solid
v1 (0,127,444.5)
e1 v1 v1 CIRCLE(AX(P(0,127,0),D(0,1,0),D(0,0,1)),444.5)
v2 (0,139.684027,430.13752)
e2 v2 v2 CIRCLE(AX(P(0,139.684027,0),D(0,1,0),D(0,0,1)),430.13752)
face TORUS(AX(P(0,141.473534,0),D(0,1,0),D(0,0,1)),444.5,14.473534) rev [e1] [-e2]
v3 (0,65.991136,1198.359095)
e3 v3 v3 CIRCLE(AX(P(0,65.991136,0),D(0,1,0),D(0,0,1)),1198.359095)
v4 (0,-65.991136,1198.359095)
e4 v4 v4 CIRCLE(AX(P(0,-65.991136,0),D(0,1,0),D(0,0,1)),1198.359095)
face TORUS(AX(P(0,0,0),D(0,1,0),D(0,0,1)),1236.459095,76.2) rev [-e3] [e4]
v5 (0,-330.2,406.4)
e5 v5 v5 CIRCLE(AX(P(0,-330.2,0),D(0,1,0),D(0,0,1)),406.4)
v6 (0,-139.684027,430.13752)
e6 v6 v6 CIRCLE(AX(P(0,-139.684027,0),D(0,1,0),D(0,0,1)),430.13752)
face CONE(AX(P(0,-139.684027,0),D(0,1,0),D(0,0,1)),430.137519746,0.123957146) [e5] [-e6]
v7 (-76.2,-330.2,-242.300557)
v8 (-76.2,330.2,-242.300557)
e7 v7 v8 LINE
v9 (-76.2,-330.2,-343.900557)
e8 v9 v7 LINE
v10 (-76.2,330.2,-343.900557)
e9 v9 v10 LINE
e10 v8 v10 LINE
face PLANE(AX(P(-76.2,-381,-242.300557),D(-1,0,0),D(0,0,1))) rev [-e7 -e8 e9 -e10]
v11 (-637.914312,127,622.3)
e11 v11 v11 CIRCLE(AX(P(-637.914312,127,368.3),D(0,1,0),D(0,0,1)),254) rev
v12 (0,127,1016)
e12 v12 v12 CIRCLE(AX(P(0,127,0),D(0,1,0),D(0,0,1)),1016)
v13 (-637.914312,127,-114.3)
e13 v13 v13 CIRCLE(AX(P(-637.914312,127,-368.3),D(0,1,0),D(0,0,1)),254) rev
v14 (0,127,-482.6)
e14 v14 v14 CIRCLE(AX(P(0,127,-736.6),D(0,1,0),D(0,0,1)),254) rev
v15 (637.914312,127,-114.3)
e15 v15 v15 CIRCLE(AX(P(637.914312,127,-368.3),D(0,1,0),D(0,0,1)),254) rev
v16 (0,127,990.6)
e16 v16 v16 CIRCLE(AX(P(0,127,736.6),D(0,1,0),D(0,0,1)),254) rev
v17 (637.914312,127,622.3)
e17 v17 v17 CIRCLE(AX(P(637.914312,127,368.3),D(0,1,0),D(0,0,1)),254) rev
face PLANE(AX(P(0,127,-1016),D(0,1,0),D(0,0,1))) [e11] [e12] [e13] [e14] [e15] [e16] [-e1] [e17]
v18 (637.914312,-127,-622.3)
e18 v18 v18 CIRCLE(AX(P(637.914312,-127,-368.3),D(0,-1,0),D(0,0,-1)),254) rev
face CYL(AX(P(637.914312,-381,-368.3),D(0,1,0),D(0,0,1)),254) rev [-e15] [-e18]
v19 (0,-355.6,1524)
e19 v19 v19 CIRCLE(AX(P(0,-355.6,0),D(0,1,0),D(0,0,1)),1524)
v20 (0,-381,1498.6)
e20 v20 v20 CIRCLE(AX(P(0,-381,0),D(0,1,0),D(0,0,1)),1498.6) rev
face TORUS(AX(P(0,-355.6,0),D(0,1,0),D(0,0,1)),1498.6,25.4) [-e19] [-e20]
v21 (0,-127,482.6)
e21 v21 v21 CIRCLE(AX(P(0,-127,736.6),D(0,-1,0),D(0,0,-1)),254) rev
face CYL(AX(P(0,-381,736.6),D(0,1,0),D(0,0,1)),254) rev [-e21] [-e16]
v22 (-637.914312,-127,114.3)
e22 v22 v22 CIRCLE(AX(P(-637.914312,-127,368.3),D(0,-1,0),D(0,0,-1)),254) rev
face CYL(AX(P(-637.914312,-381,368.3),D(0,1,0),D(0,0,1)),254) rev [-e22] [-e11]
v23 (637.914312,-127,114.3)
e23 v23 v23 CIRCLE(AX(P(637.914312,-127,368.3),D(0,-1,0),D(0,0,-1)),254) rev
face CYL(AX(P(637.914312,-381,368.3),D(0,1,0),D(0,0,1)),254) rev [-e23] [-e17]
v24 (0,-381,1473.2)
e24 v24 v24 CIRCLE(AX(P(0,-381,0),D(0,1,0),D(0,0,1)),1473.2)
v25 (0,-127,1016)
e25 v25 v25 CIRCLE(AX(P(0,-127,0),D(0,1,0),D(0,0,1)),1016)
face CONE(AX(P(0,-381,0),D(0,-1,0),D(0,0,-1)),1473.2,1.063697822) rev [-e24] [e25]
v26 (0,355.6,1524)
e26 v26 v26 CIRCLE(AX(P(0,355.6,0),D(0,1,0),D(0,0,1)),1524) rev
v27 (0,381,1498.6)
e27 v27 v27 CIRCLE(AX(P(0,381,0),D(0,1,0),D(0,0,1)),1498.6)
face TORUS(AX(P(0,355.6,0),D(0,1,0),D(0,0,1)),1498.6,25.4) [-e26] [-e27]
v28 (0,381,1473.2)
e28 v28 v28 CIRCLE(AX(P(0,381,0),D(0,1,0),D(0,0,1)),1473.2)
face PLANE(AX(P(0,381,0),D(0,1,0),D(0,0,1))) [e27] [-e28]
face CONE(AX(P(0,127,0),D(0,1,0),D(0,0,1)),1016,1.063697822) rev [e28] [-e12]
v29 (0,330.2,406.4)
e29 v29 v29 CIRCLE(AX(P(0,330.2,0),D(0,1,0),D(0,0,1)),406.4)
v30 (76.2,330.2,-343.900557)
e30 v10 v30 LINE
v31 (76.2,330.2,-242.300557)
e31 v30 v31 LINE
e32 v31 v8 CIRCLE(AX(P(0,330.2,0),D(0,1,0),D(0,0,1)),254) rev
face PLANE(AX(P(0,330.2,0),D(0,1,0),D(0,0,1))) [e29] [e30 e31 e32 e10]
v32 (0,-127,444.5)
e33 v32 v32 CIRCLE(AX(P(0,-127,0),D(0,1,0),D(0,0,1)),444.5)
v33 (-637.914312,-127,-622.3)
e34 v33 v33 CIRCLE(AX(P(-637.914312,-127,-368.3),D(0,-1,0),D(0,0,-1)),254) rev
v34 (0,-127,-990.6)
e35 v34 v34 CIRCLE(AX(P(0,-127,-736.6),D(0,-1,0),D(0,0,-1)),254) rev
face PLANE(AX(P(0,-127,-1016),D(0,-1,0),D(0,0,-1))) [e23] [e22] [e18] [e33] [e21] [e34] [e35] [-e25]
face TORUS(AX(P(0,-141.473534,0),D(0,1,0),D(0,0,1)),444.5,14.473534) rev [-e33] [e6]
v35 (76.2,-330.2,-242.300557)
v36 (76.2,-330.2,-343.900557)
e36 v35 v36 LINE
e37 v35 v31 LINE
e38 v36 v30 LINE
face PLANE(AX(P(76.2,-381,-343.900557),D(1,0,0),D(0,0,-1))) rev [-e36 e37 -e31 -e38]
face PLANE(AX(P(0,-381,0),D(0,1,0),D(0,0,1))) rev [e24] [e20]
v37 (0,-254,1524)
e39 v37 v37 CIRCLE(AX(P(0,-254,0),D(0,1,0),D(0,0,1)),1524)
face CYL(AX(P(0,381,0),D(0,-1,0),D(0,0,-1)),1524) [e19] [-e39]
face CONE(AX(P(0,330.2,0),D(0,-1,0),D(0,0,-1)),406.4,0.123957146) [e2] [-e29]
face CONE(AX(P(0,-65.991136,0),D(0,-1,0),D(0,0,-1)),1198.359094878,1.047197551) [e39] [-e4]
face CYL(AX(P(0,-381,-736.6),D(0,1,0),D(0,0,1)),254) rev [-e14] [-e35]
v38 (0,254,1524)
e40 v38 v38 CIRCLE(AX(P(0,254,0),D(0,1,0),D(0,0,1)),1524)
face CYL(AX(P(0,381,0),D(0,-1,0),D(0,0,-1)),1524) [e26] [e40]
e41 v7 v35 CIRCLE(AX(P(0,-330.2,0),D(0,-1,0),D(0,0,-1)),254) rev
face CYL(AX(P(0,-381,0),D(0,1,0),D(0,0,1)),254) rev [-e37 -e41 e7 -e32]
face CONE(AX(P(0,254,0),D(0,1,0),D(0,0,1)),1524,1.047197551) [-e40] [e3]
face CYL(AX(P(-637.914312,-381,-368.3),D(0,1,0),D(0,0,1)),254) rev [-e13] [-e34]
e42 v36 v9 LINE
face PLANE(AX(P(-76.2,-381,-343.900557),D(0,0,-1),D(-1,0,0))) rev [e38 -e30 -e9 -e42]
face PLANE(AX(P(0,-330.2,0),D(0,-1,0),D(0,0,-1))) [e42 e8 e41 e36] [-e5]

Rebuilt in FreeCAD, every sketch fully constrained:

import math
import FreeCAD as App
import Part
import Sketcher
Q = App.Units.Quantity


def edges_at(feature, points):
    """Names of the edges that pass closest to the given points."""
    edges = feature.Shape.Edges
    near = lambda p: min(range(len(edges)), key=lambda i: edges[i].distToShape(Part.Vertex(*p))[0])
    return sorted({f"Edge{near(p) + 1}" for p in points})

doc = App.newDocument("Part")
body = doc.addObject("PartDesign::Body", "Body")

# Sketch on XZ plane
sketch1 = doc.addObject("Sketcher::SketchObject", "Sketch")
body.addObject(sketch1)
sketch1.AttachmentSupport = (doc.XZ_Plane, [""])
sketch1.MapMode = "FlatFace"
sketch1.addGeometry(Part.Circle(App.Vector(0, 0, 0), App.Vector(0, 0, 1), 1524), False)
sketch1.addConstraint(Sketcher.Constraint("Coincident", 0, 3, -1, 1))
sketch1.addConstraint(Sketcher.Constraint("Diameter", 0, Q("120 in")))
pad1 = doc.addObject("PartDesign::Pad", "Pad")
body.addObject(pad1)
pad1.Profile = sketch1
pad1.Length = Q("30 in")
pad1.Midplane = True

# Sketch on YZ plane
sketch2 = doc.addObject("Sketcher::SketchObject", "Sketch001")
body.addObject(sketch2)
sketch2.AttachmentSupport = (doc.YZ_Plane, [""])
sketch2.MapMode = "FlatFace"
sketch2.addGeometry(Part.LineSegment(App.Vector(-254, -1524, 0), App.Vector(254, -1524, 0)), False)
sketch2.addGeometry(Part.LineSegment(App.Vector(254, -1524, 0), App.Vector(65.991136, -1198.359095, 0)), False)
sketch2.addGeometry(Part.ArcOfCircle(Part.Circle(App.Vector(0, -1236.459095, 0), App.Vector(0, 0, 1), 76.2), math.radians(30), math.radians(150)), False)
sketch2.addGeometry(Part.LineSegment(App.Vector(-65.991136, -1198.359095, 0), App.Vector(-254, -1524, 0)), False)
sketch2.addConstraint(Sketcher.Constraint("Coincident", 0, 2, 1, 1))
sketch2.addConstraint(Sketcher.Constraint("Tangent", 1, 2, 2, 1))
sketch2.addConstraint(Sketcher.Constraint("Tangent", 2, 2, 3, 1))
sketch2.addConstraint(Sketcher.Constraint("Coincident", 3, 2, 0, 1))
sketch2.addConstraint(Sketcher.Constraint("Horizontal", 0))
sketch2.addConstraint(Sketcher.Constraint("Symmetric", 1, 2, 2, 2, -2))
sketch2.addConstraint(Sketcher.Constraint("Radius", 2, Q("3 in")))
sketch2.addConstraint(Sketcher.Constraint("DistanceX", 0, 1, 0, 2, Q("20 in")))
sketch2.addConstraint(Sketcher.Constraint("DistanceY", 0, 2, -1, 1, Q("60 in")))
sketch2.addConstraint(Sketcher.Constraint("Angle", 1, Q("120 deg")))
groove = doc.addObject("PartDesign::Groove", "Groove")
body.addObject(groove)
groove.Profile = sketch2
groove.ReferenceAxis = (sketch2, ["H_Axis"])
groove.Angle = 360

# Sketch on XZ plane
sketch3 = doc.addObject("Sketcher::SketchObject", "Sketch002")
body.addObject(sketch3)
sketch3.AttachmentSupport = (doc.XZ_Plane, [""])
sketch3.MapMode = "FlatFace"
sketch3.AttachmentOffset = App.Placement(App.Vector(0, 0, -15 * 25.4), App.Rotation())
sketch3.addGeometry(Part.LineSegment(App.Vector(-76.2, -343.900557, 0), App.Vector(-76.2, -242.300557, 0)), False)
sketch3.addGeometry(Part.ArcOfCircle(Part.Circle(App.Vector(0, 0, 0), App.Vector(0, 0, 1), 254), math.radians(-72.542397), math.radians(252.542397)), False)
sketch3.addGeometry(Part.LineSegment(App.Vector(76.2, -242.300557, 0), App.Vector(76.2, -343.900557, 0)), False)
sketch3.addGeometry(Part.LineSegment(App.Vector(76.2, -343.900557, 0), App.Vector(-76.2, -343.900557, 0)), False)
sketch3.addConstraint(Sketcher.Constraint("Coincident", 0, 2, 1, 2))
sketch3.addConstraint(Sketcher.Constraint("Coincident", 1, 1, 2, 1))
sketch3.addConstraint(Sketcher.Constraint("Coincident", 2, 2, 3, 1))
sketch3.addConstraint(Sketcher.Constraint("Coincident", 3, 2, 0, 1))
sketch3.addConstraint(Sketcher.Constraint("Vertical", 0))
sketch3.addConstraint(Sketcher.Constraint("Vertical", 2))
sketch3.addConstraint(Sketcher.Constraint("Horizontal", 3))
sketch3.addConstraint(Sketcher.Constraint("Coincident", 1, 3, -1, 1))
sketch3.addConstraint(Sketcher.Constraint("Horizontal", 0, 2, 1, 1))
sketch3.addConstraint(Sketcher.Constraint("Radius", 1, Q("10 in")))
sketch3.addConstraint(Sketcher.Constraint("DistanceX", 3, 2, 3, 1, Q("6 in")))
sketch3.addConstraint(Sketcher.Constraint("DistanceY", 0, 1, 0, 2, Q("4 in")))
pocket1 = doc.addObject("PartDesign::Pocket", "Pocket")
body.addObject(pocket1)
pocket1.Profile = sketch3
pocket1.Type = "ThroughAll"
pocket1.Reversed = True

# Sketch on XZ plane
sketch4 = doc.addObject("Sketcher::SketchObject", "Sketch003")
body.addObject(sketch4)
sketch4.AttachmentSupport = (doc.XZ_Plane, [""])
sketch4.MapMode = "FlatFace"
sketch4.AttachmentOffset = App.Placement(App.Vector(0, 0, -15 * 25.4), App.Rotation())
sketch4.addGeometry(Part.Circle(App.Vector(0, -736.6, 0), App.Vector(0, 0, 1), 254), False)
sketch4.addConstraint(Sketcher.Constraint("PointOnObject", 0, 3, -2))
sketch4.addConstraint(Sketcher.Constraint("Diameter", 0, Q("20 in")))
sketch4.addConstraint(Sketcher.Constraint("DistanceY", 0, 3, -1, 1, Q("29 in")))
pocket2 = doc.addObject("PartDesign::Pocket", "Pocket001")
body.addObject(pocket2)
pocket2.Profile = sketch4
pocket2.Type = "ThroughAll"
pocket2.Reversed = True
doc.recompute()

polarpattern = doc.addObject("PartDesign::PolarPattern", "PolarPattern")
body.addObject(polarpattern)
polarpattern.Originals = [pocket2]
polarpattern.Axis = (doc.Y_Axis, [""])
polarpattern.Angle = 360
polarpattern.Occurrences = 6
body.Tip = polarpattern

# Sketch on YZ plane
sketch5 = doc.addObject("Sketcher::SketchObject", "Sketch004")
body.addObject(sketch5)
sketch5.AttachmentSupport = (doc.YZ_Plane, [""])
sketch5.MapMode = "FlatFace"
sketch5.addGeometry(Part.LineSegment(App.Vector(330.2, -406.4, 0), App.Vector(139.684027, -430.13752, 0)), False)
sketch5.addGeometry(Part.ArcOfCircle(Part.Circle(App.Vector(141.473534, -444.5, 0), App.Vector(0, 0, 1), 14.473534), math.radians(97.102221), math.radians(180)), False)
sketch5.addGeometry(Part.LineSegment(App.Vector(127, -444.5, 0), App.Vector(127, -1016, 0)), False)
sketch5.addGeometry(Part.LineSegment(App.Vector(127, -1016, 0), App.Vector(381, -1473.2, 0)), False)
sketch5.addGeometry(Part.LineSegment(App.Vector(381, -1473.2, 0), App.Vector(381, 0, 0)), False)
sketch5.addGeometry(Part.LineSegment(App.Vector(381, 0, 0), App.Vector(330.2, 0, 0)), False)
sketch5.addGeometry(Part.LineSegment(App.Vector(330.2, 0, 0), App.Vector(330.2, -406.4, 0)), False)
sketch5.addGeometry(Part.LineSegment(App.Vector(-330.2, 0, 0), App.Vector(-381, 0, 0)), False)
sketch5.addGeometry(Part.LineSegment(App.Vector(-381, 0, 0), App.Vector(-381, -1473.2, 0)), False)
sketch5.addGeometry(Part.LineSegment(App.Vector(-381, -1473.2, 0), App.Vector(-127, -1016, 0)), False)
sketch5.addGeometry(Part.LineSegment(App.Vector(-127, -1016, 0), App.Vector(-127, -444.5, 0)), False)
sketch5.addGeometry(Part.ArcOfCircle(Part.Circle(App.Vector(-141.473534, -444.5, 0), App.Vector(0, 0, 1), 14.473534), math.radians(0), math.radians(82.897779)), False)
sketch5.addGeometry(Part.LineSegment(App.Vector(-139.684027, -430.13752, 0), App.Vector(-330.2, -406.4, 0)), False)
sketch5.addGeometry(Part.LineSegment(App.Vector(-330.2, -406.4, 0), App.Vector(-330.2, 0, 0)), False)
sketch5.addConstraint(Sketcher.Constraint("Tangent", 0, 2, 1, 1))
sketch5.addConstraint(Sketcher.Constraint("Tangent", 1, 2, 2, 1))
sketch5.addConstraint(Sketcher.Constraint("Coincident", 2, 2, 3, 1))
sketch5.addConstraint(Sketcher.Constraint("Coincident", 3, 2, 4, 1))
sketch5.addConstraint(Sketcher.Constraint("Coincident", 4, 2, 5, 1))
sketch5.addConstraint(Sketcher.Constraint("Coincident", 5, 2, 6, 1))
sketch5.addConstraint(Sketcher.Constraint("Coincident", 6, 2, 0, 1))
sketch5.addConstraint(Sketcher.Constraint("Coincident", 7, 2, 8, 1))
sketch5.addConstraint(Sketcher.Constraint("Coincident", 8, 2, 9, 1))
sketch5.addConstraint(Sketcher.Constraint("Coincident", 9, 2, 10, 1))
sketch5.addConstraint(Sketcher.Constraint("Tangent", 10, 2, 11, 1))
sketch5.addConstraint(Sketcher.Constraint("Tangent", 11, 2, 12, 1))
sketch5.addConstraint(Sketcher.Constraint("Coincident", 12, 2, 13, 1))
sketch5.addConstraint(Sketcher.Constraint("Coincident", 13, 2, 7, 1))
sketch5.addConstraint(Sketcher.Constraint("Vertical", 2))
sketch5.addConstraint(Sketcher.Constraint("Vertical", 4))
sketch5.addConstraint(Sketcher.Constraint("Horizontal", 5))
sketch5.addConstraint(Sketcher.Constraint("Vertical", 6))
sketch5.addConstraint(Sketcher.Constraint("Horizontal", 7))
sketch5.addConstraint(Sketcher.Constraint("Vertical", 8))
sketch5.addConstraint(Sketcher.Constraint("Vertical", 10))
sketch5.addConstraint(Sketcher.Constraint("Vertical", 13))
sketch5.addConstraint(Sketcher.Constraint("Equal", 1, 11))
sketch5.addConstraint(Sketcher.Constraint("Symmetric", 4, 2, 7, 2, -1, 1))
sketch5.addConstraint(Sketcher.Constraint("Symmetric", 1, 3, 11, 3, -2))
sketch5.addConstraint(Sketcher.Constraint("Symmetric", 6, 2, 12, 2, -2))
sketch5.addConstraint(Sketcher.Constraint("PointOnObject", 4, 2, -1))
sketch5.addConstraint(Sketcher.Constraint("Horizontal", 3, 2, 8, 2))
sketch5.addConstraint(Sketcher.Constraint("Horizontal", 2, 2, 9, 2))
sketch5.addConstraint(Sketcher.Constraint("DistanceX", 5, 2, 5, 1, Q("2 in")))
sketch5.addConstraint(Sketcher.Constraint("DistanceY", 4, 1, 4, 2, Q("58 in")))
sketch5.addConstraint(Sketcher.Constraint("DistanceY", 6, 2, 6, 1, Q("16 in")))
sketch5.addConstraint(Sketcher.Constraint("DistanceY", 2, 2, 2, 1, Q("22.5 in")))
sketch5.addConstraint(Sketcher.Constraint("DistanceX", -1, 1, 1, 2, Q("5 in")))
sketch5.addConstraint(Sketcher.Constraint("DistanceY", 2, 2, -1, 1, Q("40 in")))
sketch5.addConstraint(Sketcher.Constraint("DistanceX", -1, 1, 3, 2, Q("15 in")))
sketch5.addConstraint(Sketcher.Constraint("Radius", 1, Q("14.473534 mm")))
groove2 = doc.addObject("PartDesign::Groove", "Groove001")
body.addObject(groove2)
groove2.Profile = sketch5
groove2.ReferenceAxis = (sketch5, ["H_Axis"])
groove2.Angle = 360
doc.recompute()

fillet = doc.addObject("PartDesign::Fillet", "Fillet")
body.addObject(fillet)
fillet.Base = (groove2, edges_at(groove2, [(-1524, -381, 0), (-1524, 381, 0)]))
fillet.Radius = Q("1 in")

doc.recompute()
